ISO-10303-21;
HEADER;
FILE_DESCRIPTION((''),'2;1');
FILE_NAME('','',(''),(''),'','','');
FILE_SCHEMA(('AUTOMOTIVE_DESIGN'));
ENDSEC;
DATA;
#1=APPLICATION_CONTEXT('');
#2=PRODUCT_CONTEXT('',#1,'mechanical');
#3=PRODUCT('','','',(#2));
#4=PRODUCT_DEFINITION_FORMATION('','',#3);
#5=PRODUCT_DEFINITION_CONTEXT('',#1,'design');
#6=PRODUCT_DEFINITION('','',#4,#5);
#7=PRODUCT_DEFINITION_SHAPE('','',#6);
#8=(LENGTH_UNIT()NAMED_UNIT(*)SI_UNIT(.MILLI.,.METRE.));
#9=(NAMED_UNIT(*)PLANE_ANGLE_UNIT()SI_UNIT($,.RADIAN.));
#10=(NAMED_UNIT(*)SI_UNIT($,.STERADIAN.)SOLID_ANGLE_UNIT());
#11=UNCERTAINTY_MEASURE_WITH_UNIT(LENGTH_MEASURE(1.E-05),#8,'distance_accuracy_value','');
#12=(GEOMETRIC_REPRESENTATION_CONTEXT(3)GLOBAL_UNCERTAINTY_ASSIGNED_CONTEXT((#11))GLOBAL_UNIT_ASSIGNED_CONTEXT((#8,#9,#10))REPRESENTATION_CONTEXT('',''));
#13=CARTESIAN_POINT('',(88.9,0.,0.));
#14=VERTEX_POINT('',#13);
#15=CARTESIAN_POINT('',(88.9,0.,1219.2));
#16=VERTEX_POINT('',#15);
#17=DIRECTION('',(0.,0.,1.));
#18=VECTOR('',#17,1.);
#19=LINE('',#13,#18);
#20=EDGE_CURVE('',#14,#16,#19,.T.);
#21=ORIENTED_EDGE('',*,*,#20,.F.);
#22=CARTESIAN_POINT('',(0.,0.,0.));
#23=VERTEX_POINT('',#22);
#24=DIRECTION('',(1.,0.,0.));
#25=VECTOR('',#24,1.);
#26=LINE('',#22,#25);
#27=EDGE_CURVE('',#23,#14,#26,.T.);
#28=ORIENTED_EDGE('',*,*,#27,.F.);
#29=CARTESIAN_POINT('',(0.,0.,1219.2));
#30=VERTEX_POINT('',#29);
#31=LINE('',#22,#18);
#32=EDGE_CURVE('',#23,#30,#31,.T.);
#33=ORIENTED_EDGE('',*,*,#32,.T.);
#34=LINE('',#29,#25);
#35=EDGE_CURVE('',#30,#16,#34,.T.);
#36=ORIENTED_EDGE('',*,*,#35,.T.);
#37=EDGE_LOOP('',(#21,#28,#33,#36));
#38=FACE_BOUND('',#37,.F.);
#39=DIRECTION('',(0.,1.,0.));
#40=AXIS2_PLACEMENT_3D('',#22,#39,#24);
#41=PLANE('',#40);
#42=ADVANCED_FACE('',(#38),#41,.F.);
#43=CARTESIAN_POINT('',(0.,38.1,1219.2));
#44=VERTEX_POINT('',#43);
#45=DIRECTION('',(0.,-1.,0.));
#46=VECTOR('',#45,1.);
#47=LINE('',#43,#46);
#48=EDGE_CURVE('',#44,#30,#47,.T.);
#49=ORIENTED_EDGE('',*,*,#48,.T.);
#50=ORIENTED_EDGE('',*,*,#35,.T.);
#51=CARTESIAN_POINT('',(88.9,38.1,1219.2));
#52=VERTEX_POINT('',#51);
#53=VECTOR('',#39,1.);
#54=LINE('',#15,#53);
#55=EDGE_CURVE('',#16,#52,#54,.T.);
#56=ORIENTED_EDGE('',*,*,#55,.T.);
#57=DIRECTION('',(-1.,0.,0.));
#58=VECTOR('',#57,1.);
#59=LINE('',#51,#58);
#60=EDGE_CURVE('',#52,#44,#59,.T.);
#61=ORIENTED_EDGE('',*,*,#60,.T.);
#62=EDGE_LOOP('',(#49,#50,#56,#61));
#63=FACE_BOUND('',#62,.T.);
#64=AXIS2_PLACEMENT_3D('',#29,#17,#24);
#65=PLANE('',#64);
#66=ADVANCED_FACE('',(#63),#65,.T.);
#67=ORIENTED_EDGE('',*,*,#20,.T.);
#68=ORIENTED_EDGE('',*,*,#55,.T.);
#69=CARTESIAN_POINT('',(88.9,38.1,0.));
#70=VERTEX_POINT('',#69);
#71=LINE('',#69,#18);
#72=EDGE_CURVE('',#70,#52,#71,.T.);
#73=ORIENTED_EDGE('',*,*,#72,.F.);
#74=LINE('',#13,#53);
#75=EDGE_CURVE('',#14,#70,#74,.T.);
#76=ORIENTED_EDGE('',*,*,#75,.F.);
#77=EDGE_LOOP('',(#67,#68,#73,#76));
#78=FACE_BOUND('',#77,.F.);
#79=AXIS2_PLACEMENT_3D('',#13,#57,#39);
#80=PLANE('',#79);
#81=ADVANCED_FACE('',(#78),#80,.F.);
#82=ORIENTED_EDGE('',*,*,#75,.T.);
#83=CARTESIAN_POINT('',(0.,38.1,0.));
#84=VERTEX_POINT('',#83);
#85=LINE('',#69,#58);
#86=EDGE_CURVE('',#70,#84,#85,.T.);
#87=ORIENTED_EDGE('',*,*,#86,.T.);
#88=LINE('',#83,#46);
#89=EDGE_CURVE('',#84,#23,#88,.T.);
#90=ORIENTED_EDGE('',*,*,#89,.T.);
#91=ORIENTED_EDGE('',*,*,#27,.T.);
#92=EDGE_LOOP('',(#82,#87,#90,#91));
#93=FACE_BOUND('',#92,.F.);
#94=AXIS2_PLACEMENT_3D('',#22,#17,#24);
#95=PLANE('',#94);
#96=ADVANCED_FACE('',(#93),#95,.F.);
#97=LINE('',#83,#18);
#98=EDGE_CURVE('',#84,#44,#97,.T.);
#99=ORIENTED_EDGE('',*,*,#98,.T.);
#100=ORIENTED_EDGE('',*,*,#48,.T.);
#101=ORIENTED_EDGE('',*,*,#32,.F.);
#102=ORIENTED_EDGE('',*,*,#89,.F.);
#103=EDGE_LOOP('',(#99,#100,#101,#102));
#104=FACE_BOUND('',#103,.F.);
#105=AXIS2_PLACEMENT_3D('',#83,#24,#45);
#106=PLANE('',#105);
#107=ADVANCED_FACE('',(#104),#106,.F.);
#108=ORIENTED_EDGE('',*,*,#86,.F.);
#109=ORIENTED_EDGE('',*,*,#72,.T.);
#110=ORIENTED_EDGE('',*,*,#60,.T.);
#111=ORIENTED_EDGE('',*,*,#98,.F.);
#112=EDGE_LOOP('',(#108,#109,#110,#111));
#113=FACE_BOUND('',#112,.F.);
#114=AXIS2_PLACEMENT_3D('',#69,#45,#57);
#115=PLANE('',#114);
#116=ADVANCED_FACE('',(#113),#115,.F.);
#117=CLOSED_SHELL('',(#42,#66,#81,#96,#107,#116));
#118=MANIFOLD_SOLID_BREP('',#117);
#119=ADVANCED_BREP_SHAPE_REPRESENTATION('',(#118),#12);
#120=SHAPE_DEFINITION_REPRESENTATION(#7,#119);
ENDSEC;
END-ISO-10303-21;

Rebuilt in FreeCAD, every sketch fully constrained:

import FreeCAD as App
import Part
import Sketcher

V = App.Vector
Q = App.Units.Quantity

doc = App.newDocument("Part")
body = doc.addObject("PartDesign::Body", "Body")

sketch1 = body.newObject("Sketcher::SketchObject", "Sketch")
sketch1.AttachmentSupport = (doc.getObject("XY_Plane"), [""])
sketch1.MapMode = "FlatFace"
sketch1.addGeometry([
    Part.LineSegment(V(0, 38.1, 0), V(0, 0, 0)),
    Part.LineSegment(V(0, 0, 0), V(88.9, 0, 0)),
    Part.LineSegment(V(88.9, 0, 0), V(88.9, 38.1, 0)),
    Part.LineSegment(V(88.9, 38.1, 0), V(0, 38.1, 0)),
], False)
sketch1.addConstraint([
    Sketcher.Constraint("Coincident", 0, 2, 1, 1),
    Sketcher.Constraint("Coincident", 1, 2, 2, 1),
    Sketcher.Constraint("Coincident", 2, 2, 3, 1),
    Sketcher.Constraint("Coincident", 3, 2, 0, 1),
    Sketcher.Constraint("Vertical", 0),
    Sketcher.Constraint("Horizontal", 1),
    Sketcher.Constraint("Vertical", 2),
    Sketcher.Constraint("Horizontal", 3),
    Sketcher.Constraint("Coincident", 0, 2, -1, 1),
    Sketcher.Constraint("DistanceX", 1, 1, 1, 2, Q("3.5 in")),
    Sketcher.Constraint("DistanceY", 0, 2, 0, 1, Q("1.5 in")),
])
pad1 = body.newObject("PartDesign::Pad", "Pad")
pad1.Profile = sketch1
pad1.Length = Q("48 in")

doc.recompute()
